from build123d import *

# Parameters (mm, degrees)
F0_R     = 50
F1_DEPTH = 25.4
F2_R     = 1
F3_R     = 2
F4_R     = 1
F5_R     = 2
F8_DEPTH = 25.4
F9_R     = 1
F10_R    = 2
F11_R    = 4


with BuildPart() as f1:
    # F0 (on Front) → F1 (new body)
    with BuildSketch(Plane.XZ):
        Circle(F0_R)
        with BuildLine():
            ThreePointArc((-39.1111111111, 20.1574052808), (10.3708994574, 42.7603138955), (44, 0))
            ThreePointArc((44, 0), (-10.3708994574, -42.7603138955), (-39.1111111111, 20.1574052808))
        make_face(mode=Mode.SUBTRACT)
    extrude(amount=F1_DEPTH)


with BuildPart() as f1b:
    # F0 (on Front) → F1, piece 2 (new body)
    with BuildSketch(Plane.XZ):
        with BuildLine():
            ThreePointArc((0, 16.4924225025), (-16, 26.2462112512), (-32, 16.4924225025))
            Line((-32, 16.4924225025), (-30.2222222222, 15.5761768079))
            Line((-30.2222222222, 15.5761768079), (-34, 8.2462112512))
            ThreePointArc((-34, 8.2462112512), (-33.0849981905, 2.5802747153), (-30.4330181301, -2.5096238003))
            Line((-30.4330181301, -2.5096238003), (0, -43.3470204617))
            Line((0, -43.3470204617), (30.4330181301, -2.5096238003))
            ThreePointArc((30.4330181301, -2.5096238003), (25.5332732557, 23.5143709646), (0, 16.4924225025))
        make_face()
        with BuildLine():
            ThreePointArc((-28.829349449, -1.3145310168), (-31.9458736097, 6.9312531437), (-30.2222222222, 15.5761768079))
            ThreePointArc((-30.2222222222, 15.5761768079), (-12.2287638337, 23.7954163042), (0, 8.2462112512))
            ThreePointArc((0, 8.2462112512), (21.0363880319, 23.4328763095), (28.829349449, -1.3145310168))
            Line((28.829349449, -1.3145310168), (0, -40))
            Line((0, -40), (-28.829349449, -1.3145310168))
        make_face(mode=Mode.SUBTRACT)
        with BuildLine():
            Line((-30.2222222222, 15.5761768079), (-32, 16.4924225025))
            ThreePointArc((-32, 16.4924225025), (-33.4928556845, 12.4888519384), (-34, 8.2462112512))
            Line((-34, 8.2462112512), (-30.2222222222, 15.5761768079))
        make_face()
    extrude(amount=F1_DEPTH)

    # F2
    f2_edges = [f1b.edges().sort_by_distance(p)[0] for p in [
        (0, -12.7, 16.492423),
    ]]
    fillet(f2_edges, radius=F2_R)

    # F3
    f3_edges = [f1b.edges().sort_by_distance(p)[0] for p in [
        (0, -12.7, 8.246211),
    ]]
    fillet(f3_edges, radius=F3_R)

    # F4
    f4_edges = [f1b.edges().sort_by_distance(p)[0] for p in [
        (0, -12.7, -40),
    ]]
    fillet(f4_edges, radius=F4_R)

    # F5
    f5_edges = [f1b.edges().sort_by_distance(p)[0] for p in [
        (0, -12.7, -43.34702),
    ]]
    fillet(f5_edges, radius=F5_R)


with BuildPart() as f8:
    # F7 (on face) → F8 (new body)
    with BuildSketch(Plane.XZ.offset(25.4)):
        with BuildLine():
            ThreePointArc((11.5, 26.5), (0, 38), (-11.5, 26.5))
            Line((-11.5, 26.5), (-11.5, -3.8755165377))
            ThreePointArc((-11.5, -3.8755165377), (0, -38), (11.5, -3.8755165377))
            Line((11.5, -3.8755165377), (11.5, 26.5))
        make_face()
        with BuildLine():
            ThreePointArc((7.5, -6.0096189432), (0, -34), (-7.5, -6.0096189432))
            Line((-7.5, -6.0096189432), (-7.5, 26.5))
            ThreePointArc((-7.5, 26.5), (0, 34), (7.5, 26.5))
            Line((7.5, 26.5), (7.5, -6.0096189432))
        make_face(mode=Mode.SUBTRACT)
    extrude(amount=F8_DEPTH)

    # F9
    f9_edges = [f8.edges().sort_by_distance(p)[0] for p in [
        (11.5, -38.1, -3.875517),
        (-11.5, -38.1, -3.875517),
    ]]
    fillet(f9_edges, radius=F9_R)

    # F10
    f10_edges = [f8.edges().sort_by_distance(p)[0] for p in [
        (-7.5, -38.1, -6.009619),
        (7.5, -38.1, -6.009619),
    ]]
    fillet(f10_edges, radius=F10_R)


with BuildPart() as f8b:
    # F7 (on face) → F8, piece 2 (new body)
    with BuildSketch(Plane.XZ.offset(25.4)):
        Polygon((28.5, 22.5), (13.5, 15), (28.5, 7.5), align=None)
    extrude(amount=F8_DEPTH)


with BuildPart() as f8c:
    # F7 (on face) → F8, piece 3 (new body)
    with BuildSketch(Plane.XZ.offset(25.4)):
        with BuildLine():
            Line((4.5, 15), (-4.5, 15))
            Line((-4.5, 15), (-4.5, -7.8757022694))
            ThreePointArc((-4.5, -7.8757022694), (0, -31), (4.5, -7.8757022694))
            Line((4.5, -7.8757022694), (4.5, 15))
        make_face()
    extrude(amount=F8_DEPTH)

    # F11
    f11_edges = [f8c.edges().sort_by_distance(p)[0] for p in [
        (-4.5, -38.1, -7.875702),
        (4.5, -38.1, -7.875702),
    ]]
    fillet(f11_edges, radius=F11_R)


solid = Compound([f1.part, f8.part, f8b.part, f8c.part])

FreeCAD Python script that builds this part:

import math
import FreeCAD as App
import Part
import Sketcher

V = App.Vector
Q = App.Units.Quantity


def edges_at(feature, points):
    """Names of the edges that pass closest to the given points."""
    edges = feature.Shape.Edges
    near = lambda p: min(range(len(edges)), key=lambda i: edges[i].distToShape(Part.Vertex(*p))[0])
    return sorted({f"Edge{near(p) + 1}" for p in points})

doc = App.newDocument("Part")
body = doc.addObject("PartDesign::Body", "Body")

# Sketch on XZ plane
sketch1 = body.newObject("Sketcher::SketchObject", "Sketch")
sketch1.AttachmentSupport = (doc.getObject("XZ_Plane"), [""])
sketch1.MapMode = "FlatFace"
sketch1.addGeometry(Part.Circle(V(0, 0, 0), V(0, 0, 1), 50), False)
sketch1.addGeometry(Part.ArcOfCircle(Part.Circle(V(0, 0, 0), V(0, 0, 1), 44), math.radians(152.733956), math.radians(360)), False)
sketch1.addGeometry(Part.ArcOfCircle(Part.Circle(V(0, 0, 0), V(0, 0, 1), 44), math.radians(0), math.radians(152.733956)), False)
sketch1.addConstraint(Sketcher.Constraint("Tangent", 1, 1, 2, 2))
sketch1.addConstraint(Sketcher.Constraint("Coincident", 2, 1, 1, 2))
sketch1.addConstraint(Sketcher.Constraint("Coincident", 0, 3, -1, 1))
sketch1.addConstraint(Sketcher.Constraint("Coincident", 1, 3, -1, 1))
sketch1.addConstraint(Sketcher.Constraint("PointOnObject", 2, 1, -1))
sketch1.addConstraint(Sketcher.Constraint("Diameter", 0, Q("100 mm")))
sketch1.addConstraint(Sketcher.Constraint("Radius", 1, Q("44 mm")))
sketch1.addConstraint(Sketcher.Constraint("DistanceX", 1, 1, -1, 1, Q("39.111111 mm")))
pad1 = body.newObject("PartDesign::Pad", "Pad")
pad1.Profile = sketch1
pad1.Length = 25.4
body2 = doc.addObject("PartDesign::Body", "Body001")

# Sketch on XZ plane
sketch2 = body2.newObject("Sketcher::SketchObject", "Sketch001")
sketch2.AttachmentSupport = (doc.getObject("XZ_Plane001"), [""])
sketch2.MapMode = "FlatFace"
sketch2.addGeometry(Part.LineSegment(V(0, -43.34702, 0), V(30.433018, -2.509624, 0)), False)
sketch2.addGeometry(Part.ArcOfCircle(Part.Circle(V(16, 8.246211, 0), V(0, 0, 1), 18), math.radians(-36.694372), math.radians(152.733956)), False)
sketch2.addGeometry(Part.ArcOfCircle(Part.Circle(V(-16, 8.246211, 0), V(0, 0, 1), 18), math.radians(27.266044), math.radians(152.733956)), False)
sketch2.addGeometry(Part.ArcOfCircle(Part.Circle(V(-16, 8.246211, 0), V(0, 0, 1), 18), math.radians(152.733956), math.radians(180)), False)
sketch2.addGeometry(Part.ArcOfCircle(Part.Circle(V(-16, 8.246211, 0), V(0, 0, 1), 18), math.radians(180), math.radians(216.694372)), False)
sketch2.addGeometry(Part.LineSegment(V(-30.433018, -2.509624, 0), V(0, -43.34702, 0)), False)
sketch2.addGeometry(Part.ArcOfCircle(Part.Circle(V(-16, 8.246211, 0), V(0, 0, 1), 16), math.radians(152.733956), math.radians(216.694372)), False)
sketch2.addGeometry(Part.ArcOfCircle(Part.Circle(V(-16, 8.246211, 0), V(0, 0, 1), 16), math.radians(0), math.radians(152.733956)), False)
sketch2.addGeometry(Part.ArcOfCircle(Part.Circle(V(16, 8.246211, 0), V(0, 0, 1), 16), math.radians(-36.694372), math.radians(180)), False)
sketch2.addGeometry(Part.LineSegment(V(28.829349, -1.314531, 0), V(0, -40, 0)), False)
sketch2.addGeometry(Part.LineSegment(V(0, -40, 0), V(-28.829349, -1.314531, 0)), False)
sketch2.addConstraint(Sketcher.Constraint("Tangent", 0, 2, 1, 1))
sketch2.addConstraint(Sketcher.Constraint("Coincident", 1, 2, 2, 1))
sketch2.addConstraint(Sketcher.Constraint("Tangent", 2, 2, 3, 1))
sketch2.addConstraint(Sketcher.Constraint("Tangent", 3, 2, 4, 1))
sketch2.addConstraint(Sketcher.Constraint("Tangent", 4, 2, 5, 1))
sketch2.addConstraint(Sketcher.Constraint("Coincident", 5, 2, 0, 1))
sketch2.addConstraint(Sketcher.Constraint("Tangent", 6, 1, 7, 2))
sketch2.addConstraint(Sketcher.Constraint("Tangent", 7, 1, 8, 2))
sketch2.addConstraint(Sketcher.Constraint("Tangent", 8, 1, 9, 1))
sketch2.addConstraint(Sketcher.Constraint("Coincident", 9, 2, 10, 1))
sketch2.addConstraint(Sketcher.Constraint("Tangent", 10, 2, 6, 2))
sketch2.addConstraint(Sketcher.Constraint("Coincident", 4, 3, 2, 3))
sketch2.addConstraint(Sketcher.Constraint("Coincident", 6, 3, 2, 3))
sketch2.addConstraint(Sketcher.Constraint("Coincident", 8, 3, 1, 3))
sketch2.addConstraint(Sketcher.Constraint("Equal", 1, 2))
sketch2.addConstraint(Sketcher.Constraint("Equal", 6, 7))
sketch2.addConstraint(Sketcher.Constraint("Equal", 7, 8))
sketch2.addConstraint(Sketcher.Constraint("Symmetric", 1, 3, 2, 3, -2))
sketch2.addConstraint(Sketcher.Constraint("PointOnObject", 5, 2, -2))
sketch2.addConstraint(Sketcher.Constraint("PointOnObject", 9, 2, -2))
sketch2.addConstraint(Sketcher.Constraint("Parallel", 0, 9))
sketch2.addConstraint(Sketcher.Constraint("Horizontal", 1, 2, 2, 2))
sketch2.addConstraint(Sketcher.Constraint("Horizontal", 8, 3, 3, 2))
sketch2.addConstraint(Sketcher.Constraint("Radius", 1, Q("18 mm")))
sketch2.addConstraint(Sketcher.Constraint("Radius", 6, Q("16 mm")))
sketch2.addConstraint(Sketcher.Constraint("DistanceY", 9, 2, -1, 1, Q("40 mm")))
sketch2.addConstraint(Sketcher.Constraint("Distance", 9, Q("48.246211 mm")))
sketch2.addConstraint(Sketcher.Constraint("DistanceX", 6, 1, -1, 1, Q("30.222222 mm")))
pad2 = body2.newObject("PartDesign::Pad", "Pad001")
pad2.Profile = sketch2
pad2.Length = 25.4
doc.recompute()

fillet = body2.newObject("PartDesign::Fillet", "Fillet")
fillet.Base = (pad2, edges_at(pad2, [(0, -12.7, 16.492)]))
fillet.Radius = 1
doc.recompute()

fillet2 = body2.newObject("PartDesign::Fillet", "Fillet001")
fillet2.Base = (fillet, edges_at(fillet, [(0, -12.7, 8.246)]))
fillet2.Radius = 2
doc.recompute()

fillet3 = body2.newObject("PartDesign::Fillet", "Fillet002")
fillet3.Base = (fillet2, edges_at(fillet2, [(0, -12.7, -40)]))
fillet3.Radius = 1
doc.recompute()

fillet4 = body2.newObject("PartDesign::Fillet", "Fillet003")
fillet4.Base = (fillet3, edges_at(fillet3, [(0, -12.7, -43.347)]))
fillet4.Radius = 2
body3 = doc.addObject("PartDesign::Body", "Body002")

# Sketch on XZ plane
sketch3 = body3.newObject("Sketcher::SketchObject", "Sketch002")
sketch3.AttachmentSupport = (doc.getObject("XZ_Plane002"), [""])
sketch3.MapMode = "FlatFace"
sketch3.AttachmentOffset = App.Placement(V(0, 0, 25.4), App.Rotation())
sketch3.addGeometry(Part.ArcOfCircle(Part.Circle(V(0, 26.5, 0), V(0, 0, 1), 11.5), math.radians(0), math.radians(180)), False)
sketch3.addGeometry(Part.LineSegment(V(-11.5, 26.5, 0), V(-11.5, -3.875517, 0)), False)
sketch3.addGeometry(Part.ArcOfCircle(Part.Circle(V(0, -19, 0), V(0, 0, 1), 19), math.radians(127.247781), math.radians(412.752219)), False)
sketch3.addGeometry(Part.LineSegment(V(11.5, -3.875517, 0), V(11.5, 26.5, 0)), False)
sketch3.addGeometry(Part.LineSegment(V(7.5, 26.5, 0), V(7.5, -6.009619, 0)), False)
sketch3.addGeometry(Part.ArcOfCircle(Part.Circle(V(0, -19, 0), V(0, 0, 1), 15), math.radians(120), math.radians(420)), False)
sketch3.addGeometry(Part.LineSegment(V(-7.5, -6.009619, 0), V(-7.5, 26.5, 0)), False)
sketch3.addGeometry(Part.ArcOfCircle(Part.Circle(V(0, 26.5, 0), V(0, 0, 1), 7.5), math.radians(0), math.radians(180)), False)
sketch3.addConstraint(Sketcher.Constraint("Tangent", 0, 2, 1, 1))
sketch3.addConstraint(Sketcher.Constraint("Coincident", 1, 2, 2, 1))
sketch3.addConstraint(Sketcher.Constraint("Coincident", 2, 2, 3, 1))
sketch3.addConstraint(Sketcher.Constraint("Tangent", 3, 2, 0, 1))
sketch3.addConstraint(Sketcher.Constraint("Coincident", 4, 2, 5, 2))
sketch3.addConstraint(Sketcher.Constraint("Coincident", 5, 1, 6, 1))
sketch3.addConstraint(Sketcher.Constraint("Tangent", 6, 2, 7, 2))
sketch3.addConstraint(Sketcher.Constraint("Tangent", 7, 1, 4, 1))
sketch3.addConstraint(Sketcher.Constraint("Vertical", 1))
sketch3.addConstraint(Sketcher.Constraint("Vertical", 3))
sketch3.addConstraint(Sketcher.Constraint("Vertical", 4))
sketch3.addConstraint(Sketcher.Constraint("Vertical", 6))
sketch3.addConstraint(Sketcher.Constraint("Coincident", 5, 3, 2, 3))
sketch3.addConstraint(Sketcher.Constraint("Coincident", 7, 3, 0, 3))
sketch3.addConstraint(Sketcher.Constraint("Symmetric", 1, 2, 2, 2, -2))
sketch3.addConstraint(Sketcher.Constraint("Radius", 2, Q("19 mm")))
sketch3.addConstraint(Sketcher.Constraint("Radius", 5, Q("15 mm")))
sketch3.addConstraint(Sketcher.Constraint("Radius", 0, Q("11.5 mm")))
sketch3.addConstraint(Sketcher.Constraint("Radius", 7, Q("7.5 mm")))
sketch3.addConstraint(Sketcher.Constraint("DistanceY", 2, 3, -1, 1, Q("19 mm")))
sketch3.addConstraint(Sketcher.Constraint("DistanceY", -1, 1, 0, 3, Q("26.5 mm")))
pad3 = body3.newObject("PartDesign::Pad", "Pad002")
pad3.Profile = sketch3
pad3.Length = 25.4
doc.recompute()

fillet5 = body3.newObject("PartDesign::Fillet", "Fillet004")
fillet5.Base = (pad3, edges_at(pad3, [(11.5, -38.1, -3.876), (-11.5, -38.1, -3.876)]))
fillet5.Radius = 1
doc.recompute()

fillet6 = body3.newObject("PartDesign::Fillet", "Fillet005")
fillet6.Base = (fillet5, edges_at(fillet5, [(-7.5, -38.1, -6.01), (7.5, -38.1, -6.01)]))
fillet6.Radius = 2
body4 = doc.addObject("PartDesign::Body", "Body003")

# Sketch on XZ plane
sketch4 = body4.newObject("Sketcher::SketchObject", "Sketch003")
sketch4.AttachmentSupport = (doc.getObject("XZ_Plane003"), [""])
sketch4.MapMode = "FlatFace"
sketch4.AttachmentOffset = App.Placement(V(0, 0, 25.4), App.Rotation())
sketch4.addGeometry(Part.LineSegment(V(28.5, 22.5, 0), V(13.5, 15, 0)), False)
sketch4.addGeometry(Part.LineSegment(V(13.5, 15, 0), V(28.5, 7.5, 0)), False)
sketch4.addGeometry(Part.LineSegment(V(28.5, 7.5, 0), V(28.5, 22.5, 0)), False)
sketch4.addConstraint(Sketcher.Constraint("Coincident", 0, 2, 1, 1))
sketch4.addConstraint(Sketcher.Constraint("Coincident", 1, 2, 2, 1))
sketch4.addConstraint(Sketcher.Constraint("Coincident", 2, 2, 0, 1))
sketch4.addConstraint(Sketcher.Constraint("Vertical", 2))
sketch4.addConstraint(Sketcher.Constraint("Equal", 0, 1))
sketch4.addConstraint(Sketcher.Constraint("DistanceY", 2, 1, 2, 2, Q("15 mm")))
sketch4.addConstraint(Sketcher.Constraint("DistanceY", -1, 1, 0, 2, Q("15 mm")))
sketch4.addConstraint(Sketcher.Constraint("DistanceX", 0, 2, 1, 2, Q("15 mm")))
sketch4.addConstraint(Sketcher.Constraint("DistanceX", -1, 1, 0, 2, Q("13.5 mm")))
pad4 = body4.newObject("PartDesign::Pad", "Pad003")
pad4.Profile = sketch4
pad4.Length = 25.4
body5 = doc.addObject("PartDesign::Body", "Body004")

# Sketch on XZ plane
sketch5 = body5.newObject("Sketcher::SketchObject", "Sketch004")
sketch5.AttachmentSupport = (doc.getObject("XZ_Plane004"), [""])
sketch5.MapMode = "FlatFace"
sketch5.AttachmentOffset = App.Placement(V(0, 0, 25.4), App.Rotation())
sketch5.addGeometry(Part.LineSegment(V(4.5, 15, 0), V(-4.5, 15, 0)), False)
sketch5.addGeometry(Part.LineSegment(V(-4.5, 15, 0), V(-4.5, -7.875702, 0)), False)
sketch5.addGeometry(Part.ArcOfCircle(Part.Circle(V(0, -19, 0), V(0, 0, 1), 12), math.radians(112.024313), math.radians(427.975687)), False)
sketch5.addGeometry(Part.LineSegment(V(4.5, -7.875702, 0), V(4.5, 15, 0)), False)
sketch5.addConstraint(Sketcher.Constraint("Coincident", 0, 2, 1, 1))
sketch5.addConstraint(Sketcher.Constraint("Coincident", 1, 2, 2, 1))
sketch5.addConstraint(Sketcher.Constraint("Coincident", 2, 2, 3, 1))
sketch5.addConstraint(Sketcher.Constraint("Coincident", 3, 2, 0, 1))
sketch5.addConstraint(Sketcher.Constraint("Horizontal", 0))
sketch5.addConstraint(Sketcher.Constraint("Vertical", 1))
sketch5.addConstraint(Sketcher.Constraint("Vertical", 3))
sketch5.addConstraint(Sketcher.Constraint("Symmetric", 1, 2, 2, 2, -2))
sketch5.addConstraint(Sketcher.Constraint("Radius", 2, Q("12 mm")))
sketch5.addConstraint(Sketcher.Constraint("DistanceX", 0, 2, 0, 1, Q("9 mm")))
sketch5.addConstraint(Sketcher.Constraint("DistanceY", 2, 3, -1, 1, Q("19 mm")))
sketch5.addConstraint(Sketcher.Constraint("DistanceY", -1, 1, 0, 2, Q("15 mm")))
pad5 = body5.newObject("PartDesign::Pad", "Pad004")
pad5.Profile = sketch5
pad5.Length = 25.4
doc.recompute()

fillet7 = body5.newObject("PartDesign::Fillet", "Fillet006")
fillet7.Base = (pad5, edges_at(pad5, [(-4.5, -38.1, -7.876), (4.5, -38.1, -7.876)]))
fillet7.Radius = 4
body2.Visibility = False

doc.recompute()
